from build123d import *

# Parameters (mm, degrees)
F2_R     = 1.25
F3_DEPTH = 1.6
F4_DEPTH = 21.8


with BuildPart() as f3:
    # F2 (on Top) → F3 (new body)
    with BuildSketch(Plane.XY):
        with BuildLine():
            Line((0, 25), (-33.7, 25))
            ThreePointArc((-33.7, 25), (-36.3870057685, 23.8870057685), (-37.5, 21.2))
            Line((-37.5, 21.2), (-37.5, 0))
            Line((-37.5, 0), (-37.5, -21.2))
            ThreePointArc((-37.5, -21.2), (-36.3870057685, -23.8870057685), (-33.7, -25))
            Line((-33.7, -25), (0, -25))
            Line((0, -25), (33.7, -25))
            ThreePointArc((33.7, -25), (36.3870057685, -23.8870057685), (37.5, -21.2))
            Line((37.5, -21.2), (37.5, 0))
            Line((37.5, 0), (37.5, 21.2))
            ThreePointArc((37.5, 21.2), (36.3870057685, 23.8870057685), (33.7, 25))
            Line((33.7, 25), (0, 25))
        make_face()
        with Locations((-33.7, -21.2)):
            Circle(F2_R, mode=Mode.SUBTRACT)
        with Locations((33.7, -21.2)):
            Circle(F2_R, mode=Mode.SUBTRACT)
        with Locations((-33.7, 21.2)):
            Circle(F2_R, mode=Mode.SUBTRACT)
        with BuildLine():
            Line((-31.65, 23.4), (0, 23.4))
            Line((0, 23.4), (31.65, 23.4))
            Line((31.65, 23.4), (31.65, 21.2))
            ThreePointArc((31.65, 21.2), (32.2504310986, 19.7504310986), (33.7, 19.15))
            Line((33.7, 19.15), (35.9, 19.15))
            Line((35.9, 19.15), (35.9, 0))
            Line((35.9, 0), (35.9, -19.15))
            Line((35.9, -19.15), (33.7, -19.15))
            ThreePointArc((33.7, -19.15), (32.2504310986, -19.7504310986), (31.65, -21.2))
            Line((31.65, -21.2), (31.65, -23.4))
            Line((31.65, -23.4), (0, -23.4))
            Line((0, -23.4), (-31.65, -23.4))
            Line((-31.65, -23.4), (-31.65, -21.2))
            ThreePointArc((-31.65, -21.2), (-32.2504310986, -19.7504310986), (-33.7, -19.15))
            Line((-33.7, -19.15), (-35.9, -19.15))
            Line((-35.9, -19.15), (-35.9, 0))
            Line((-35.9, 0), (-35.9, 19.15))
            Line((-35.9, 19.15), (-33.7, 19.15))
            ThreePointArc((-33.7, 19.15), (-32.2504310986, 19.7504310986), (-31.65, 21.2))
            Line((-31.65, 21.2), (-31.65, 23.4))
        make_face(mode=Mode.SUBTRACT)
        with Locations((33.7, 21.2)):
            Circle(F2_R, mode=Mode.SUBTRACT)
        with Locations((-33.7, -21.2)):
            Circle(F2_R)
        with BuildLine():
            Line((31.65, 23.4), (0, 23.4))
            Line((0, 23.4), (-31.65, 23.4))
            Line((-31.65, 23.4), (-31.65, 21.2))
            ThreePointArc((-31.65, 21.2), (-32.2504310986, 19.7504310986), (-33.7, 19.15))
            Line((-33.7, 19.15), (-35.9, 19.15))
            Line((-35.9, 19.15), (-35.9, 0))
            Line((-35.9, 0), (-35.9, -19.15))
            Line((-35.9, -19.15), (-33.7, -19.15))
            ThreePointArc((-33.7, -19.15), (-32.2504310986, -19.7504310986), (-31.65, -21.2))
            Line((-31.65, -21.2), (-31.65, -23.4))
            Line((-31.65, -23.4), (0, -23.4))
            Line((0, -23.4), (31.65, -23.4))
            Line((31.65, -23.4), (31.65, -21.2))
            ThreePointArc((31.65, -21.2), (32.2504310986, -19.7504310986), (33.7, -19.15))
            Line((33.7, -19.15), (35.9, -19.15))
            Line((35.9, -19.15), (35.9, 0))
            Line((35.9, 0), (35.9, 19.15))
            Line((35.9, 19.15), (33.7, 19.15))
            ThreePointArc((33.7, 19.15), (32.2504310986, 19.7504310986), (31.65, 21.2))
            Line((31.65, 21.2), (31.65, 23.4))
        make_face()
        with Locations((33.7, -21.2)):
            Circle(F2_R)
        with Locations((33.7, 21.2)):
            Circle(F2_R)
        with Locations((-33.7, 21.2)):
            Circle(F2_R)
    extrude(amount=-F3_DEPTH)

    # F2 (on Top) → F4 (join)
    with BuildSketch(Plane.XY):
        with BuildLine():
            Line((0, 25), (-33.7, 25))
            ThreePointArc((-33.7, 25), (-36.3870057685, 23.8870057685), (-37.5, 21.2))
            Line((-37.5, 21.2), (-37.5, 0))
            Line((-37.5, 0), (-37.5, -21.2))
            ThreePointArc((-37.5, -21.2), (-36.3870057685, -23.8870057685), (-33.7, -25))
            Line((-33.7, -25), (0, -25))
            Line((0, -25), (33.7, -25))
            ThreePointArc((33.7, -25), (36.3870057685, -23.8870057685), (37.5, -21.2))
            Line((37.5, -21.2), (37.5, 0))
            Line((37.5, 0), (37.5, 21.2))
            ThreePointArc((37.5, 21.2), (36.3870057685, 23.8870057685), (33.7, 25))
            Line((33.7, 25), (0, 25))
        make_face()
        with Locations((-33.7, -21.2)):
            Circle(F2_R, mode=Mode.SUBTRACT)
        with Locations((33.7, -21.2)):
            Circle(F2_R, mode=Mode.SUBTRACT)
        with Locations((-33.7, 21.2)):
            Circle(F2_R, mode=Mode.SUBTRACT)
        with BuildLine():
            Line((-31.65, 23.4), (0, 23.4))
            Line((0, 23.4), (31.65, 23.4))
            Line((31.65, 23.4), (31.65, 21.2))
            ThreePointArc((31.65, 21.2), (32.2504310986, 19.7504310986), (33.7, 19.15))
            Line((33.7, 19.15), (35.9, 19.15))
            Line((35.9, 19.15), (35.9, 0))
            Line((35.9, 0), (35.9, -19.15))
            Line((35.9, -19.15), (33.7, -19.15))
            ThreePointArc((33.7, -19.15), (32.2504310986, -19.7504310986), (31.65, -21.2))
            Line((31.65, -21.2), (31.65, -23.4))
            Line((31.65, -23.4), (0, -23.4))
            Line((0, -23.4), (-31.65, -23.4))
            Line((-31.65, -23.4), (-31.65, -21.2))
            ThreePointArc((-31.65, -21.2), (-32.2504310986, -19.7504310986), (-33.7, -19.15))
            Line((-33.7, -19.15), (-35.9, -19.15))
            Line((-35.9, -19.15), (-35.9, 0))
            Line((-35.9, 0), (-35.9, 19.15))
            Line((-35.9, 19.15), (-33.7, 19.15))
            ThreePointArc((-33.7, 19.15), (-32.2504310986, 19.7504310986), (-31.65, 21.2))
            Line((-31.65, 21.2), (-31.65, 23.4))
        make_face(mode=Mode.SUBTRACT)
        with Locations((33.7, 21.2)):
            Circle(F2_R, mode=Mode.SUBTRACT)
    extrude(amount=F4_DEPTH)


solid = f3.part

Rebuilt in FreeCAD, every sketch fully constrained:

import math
import FreeCAD as App
import Part
import Sketcher

doc = App.newDocument("Part")
body = doc.addObject("PartDesign::Body", "Body")

sketch1 = doc.addObject("Sketcher::SketchObject", "Sketch")
body.addObject(sketch1)
sketch1.AttachmentSupport = (doc.XY_Plane, [""])
sketch1.MapMode = "FlatFace"
sketch1.addGeometry([
    Part.ArcOfCircle(Part.Circle(App.Vector(-33.7, 21.2, 0), App.Vector(0, 0, 1), 3.8), math.radians(90), math.radians(180)),
    Part.LineSegment(App.Vector(-37.5, 21.2, 0), App.Vector(-37.5, -21.2, 0)),
    Part.ArcOfCircle(Part.Circle(App.Vector(-33.7, -21.2, 0), App.Vector(0, 0, 1), 3.8), math.radians(180), math.radians(270)),
    Part.LineSegment(App.Vector(-33.7, -25, 0), App.Vector(33.7, -25, 0)),
    Part.ArcOfCircle(Part.Circle(App.Vector(33.7, -21.2, 0), App.Vector(0, 0, 1), 3.8), math.radians(-90), math.radians(0)),
    Part.LineSegment(App.Vector(37.5, -21.2, 0), App.Vector(37.5, 21.2, 0)),
    Part.ArcOfCircle(Part.Circle(App.Vector(33.7, 21.2, 0), App.Vector(0, 0, 1), 3.8), math.radians(0), math.radians(90)),
    Part.LineSegment(App.Vector(33.7, 25, 0), App.Vector(-33.7, 25, 0)),
], False)
sketch1.addConstraint([
    Sketcher.Constraint("Tangent", 0, 2, 1, 1),
    Sketcher.Constraint("Tangent", 1, 2, 2, 1),
    Sketcher.Constraint("Tangent", 2, 2, 3, 1),
    Sketcher.Constraint("Tangent", 3, 2, 4, 1),
    Sketcher.Constraint("Tangent", 4, 2, 5, 1),
    Sketcher.Constraint("Tangent", 5, 2, 6, 1),
    Sketcher.Constraint("Tangent", 6, 2, 7, 1),
    Sketcher.Constraint("Tangent", 7, 2, 0, 1),
    Sketcher.Constraint("Vertical", 1),
    Sketcher.Constraint("Horizontal", 3),
    Sketcher.Constraint("Vertical", 5),
    Sketcher.Constraint("Horizontal", 7),
    Sketcher.Constraint("Equal", 0, 2),
    Sketcher.Constraint("Equal", 2, 4),
    Sketcher.Constraint("Equal", 4, 6),
    Sketcher.Constraint("Symmetric", 0, 3, 4, 3, -1, 1),
    Sketcher.Constraint("Radius", 0, 3.8),
    Sketcher.Constraint("DistanceX", 3, 1, 3, 2, 67.4),
    Sketcher.Constraint("DistanceY", 1, 2, 1, 1, 42.4),
])
pad1 = doc.addObject("PartDesign::Pad", "Pad")
body.addObject(pad1)
pad1.Profile = sketch1
pad1.Length = 1.6
pad1.Reversed = True

sketch2 = doc.addObject("Sketcher::SketchObject", "Sketch001")
body.addObject(sketch2)
sketch2.AttachmentSupport = (doc.XY_Plane, [""])
sketch2.MapMode = "FlatFace"
sketch2.addGeometry([
    Part.ArcOfCircle(Part.Circle(App.Vector(-33.7, 21.2, 0), App.Vector(0, 0, 1), 3.8), math.radians(90), math.radians(180)),
    Part.LineSegment(App.Vector(-37.5, 21.2, 0), App.Vector(-37.5, -21.2, 0)),
    Part.ArcOfCircle(Part.Circle(App.Vector(-33.7, -21.2, 0), App.Vector(0, 0, 1), 3.8), math.radians(180), math.radians(270)),
    Part.LineSegment(App.Vector(-33.7, -25, 0), App.Vector(33.7, -25, 0)),
    Part.ArcOfCircle(Part.Circle(App.Vector(33.7, -21.2, 0), App.Vector(0, 0, 1), 3.8), math.radians(-90), math.radians(0)),
    Part.LineSegment(App.Vector(37.5, -21.2, 0), App.Vector(37.5, 21.2, 0)),
    Part.ArcOfCircle(Part.Circle(App.Vector(33.7, 21.2, 0), App.Vector(0, 0, 1), 3.8), math.radians(0), math.radians(90)),
    Part.LineSegment(App.Vector(33.7, 25, 0), App.Vector(-33.7, 25, 0)),
    Part.Circle(App.Vector(-33.7, -21.2, 0), App.Vector(0, 0, 1), 1.2),
    Part.Circle(App.Vector(33.7, -21.2, 0), App.Vector(0, 0, 1), 1.2),
    Part.Circle(App.Vector(-33.7, 21.2, 0), App.Vector(0, 0, 1), 1.2),
    Part.LineSegment(App.Vector(-31.6, 21.2, 0), App.Vector(-31.6, 23.4, 0)),
    Part.LineSegment(App.Vector(-31.6, 23.4, 0), App.Vector(31.6, 23.4, 0)),
    Part.LineSegment(App.Vector(31.6, 23.4, 0), App.Vector(31.6, 21.2, 0)),
    Part.ArcOfCircle(Part.Circle(App.Vector(33.7, 21.2, 0), App.Vector(0, 0, 1), 2), math.radians(180), math.radians(270)),
    Part.LineSegment(App.Vector(33.7, 19.1, 0), App.Vector(35.9, 19.1, 0)),
    Part.LineSegment(App.Vector(35.9, 19.1, 0), App.Vector(35.9, -19.1, 0)),
    Part.LineSegment(App.Vector(35.9, -19.1, 0), App.Vector(33.7, -19.1, 0)),
    Part.ArcOfCircle(Part.Circle(App.Vector(33.7, -21.2, 0), App.Vector(0, 0, 1), 2), math.radians(90), math.radians(180)),
    Part.LineSegment(App.Vector(31.6, -21.2, 0), App.Vector(31.6, -23.4, 0)),
    Part.LineSegment(App.Vector(31.6, -23.4, 0), App.Vector(-31.6, -23.4, 0)),
    Part.LineSegment(App.Vector(-31.6, -23.4, 0), App.Vector(-31.6, -21.2, 0)),
    Part.ArcOfCircle(Part.Circle(App.Vector(-33.7, -21.2, 0), App.Vector(0, 0, 1), 2), math.radians(0), math.radians(90)),
    Part.LineSegment(App.Vector(-33.7, -19.1, 0), App.Vector(-35.9, -19.1, 0)),
    Part.LineSegment(App.Vector(-35.9, -19.1, 0), App.Vector(-35.9, 19.1, 0)),
    Part.LineSegment(App.Vector(-35.9, 19.1, 0), App.Vector(-33.7, 19.1, 0)),
    Part.ArcOfCircle(Part.Circle(App.Vector(-33.7, 21.2, 0), App.Vector(0, 0, 1), 2), math.radians(-90), math.radians(0)),
    Part.Circle(App.Vector(33.7, 21.2, 0), App.Vector(0, 0, 1), 1.2),
], False)
sketch2.addConstraint([
    Sketcher.Constraint("Tangent", 0, 2, 1, 1),
    Sketcher.Constraint("Tangent", 1, 2, 2, 1),
    Sketcher.Constraint("Tangent", 2, 2, 3, 1),
    Sketcher.Constraint("Tangent", 3, 2, 4, 1),
    Sketcher.Constraint("Tangent", 4, 2, 5, 1),
    Sketcher.Constraint("Tangent", 5, 2, 6, 1),
    Sketcher.Constraint("Tangent", 6, 2, 7, 1),
    Sketcher.Constraint("Tangent", 7, 2, 0, 1),
    Sketcher.Constraint("Coincident", 11, 2, 12, 1),
    Sketcher.Constraint("Coincident", 12, 2, 13, 1),
    Sketcher.Constraint("Tangent", 13, 2, 14, 1),
    Sketcher.Constraint("Tangent", 14, 2, 15, 1),
    Sketcher.Constraint("Coincident", 15, 2, 16, 1),
    Sketcher.Constraint("Coincident", 16, 2, 17, 1),
    Sketcher.Constraint("Tangent", 17, 2, 18, 1),
    Sketcher.Constraint("Tangent", 18, 2, 19, 1),
    Sketcher.Constraint("Coincident", 19, 2, 20, 1),
    Sketcher.Constraint("Coincident", 20, 2, 21, 1),
    Sketcher.Constraint("Tangent", 21, 2, 22, 1),
    Sketcher.Constraint("Tangent", 22, 2, 23, 1),
    Sketcher.Constraint("Coincident", 23, 2, 24, 1),
    Sketcher.Constraint("Coincident", 24, 2, 25, 1),
    Sketcher.Constraint("Tangent", 25, 2, 26, 1),
    Sketcher.Constraint("Tangent", 26, 2, 11, 1),
    Sketcher.Constraint("Vertical", 1),
    Sketcher.Constraint("Horizontal", 3),
    Sketcher.Constraint("Vertical", 5),
    Sketcher.Constraint("Horizontal", 7),
    Sketcher.Constraint("Vertical", 11),
    Sketcher.Constraint("Horizontal", 12),
    Sketcher.Constraint("Vertical", 13),
    Sketcher.Constraint("Horizontal", 15),
    Sketcher.Constraint("Vertical", 16),
    Sketcher.Constraint("Horizontal", 17),
    Sketcher.Constraint("Vertical", 19),
    Sketcher.Constraint("Horizontal", 20),
    Sketcher.Constraint("Vertical", 21),
    Sketcher.Constraint("Horizontal", 23),
    Sketcher.Constraint("Vertical", 24),
    Sketcher.Constraint("Horizontal", 25),
    Sketcher.Constraint("Coincident", 8, 3, 2, 3),
    Sketcher.Constraint("Coincident", 9, 3, 4, 3),
    Sketcher.Constraint("Coincident", 10, 3, 0, 3),
    Sketcher.Constraint("Coincident", 14, 3, 6, 3),
    Sketcher.Constraint("Coincident", 18, 3, 4, 3),
    Sketcher.Constraint("Coincident", 22, 3, 2, 3),
    Sketcher.Constraint("Coincident", 26, 3, 0, 3),
    Sketcher.Constraint("Coincident", 27, 3, 6, 3),
    Sketcher.Constraint("Equal", 0, 2),
    Sketcher.Constraint("Equal", 2, 4),
    Sketcher.Constraint("Equal", 4, 6),
    Sketcher.Constraint("Equal", 8, 9),
    Sketcher.Constraint("Equal", 9, 10),
    Sketcher.Constraint("Equal", 14, 18),
    Sketcher.Constraint("Equal", 18, 22),
    Sketcher.Constraint("Equal", 22, 26),
    Sketcher.Constraint("Equal", 10, 27),
    Sketcher.Constraint("Symmetric", 0, 3, 4, 3, -1, 1),
    Sketcher.Constraint("Equal", 17, 23),
    Sketcher.Constraint("Equal", 25, 11),
    Sketcher.Constraint("Equal", 13, 19),
    Sketcher.Constraint("Diameter", 8, 2.5),
    Sketcher.Constraint("Radius", 0, 3.8),
    Sketcher.Constraint("Radius", 14, 2.05),
    Sketcher.Constraint("DistanceX", 3, 1, 3, 2, 67.4),
    Sketcher.Constraint("DistanceX", 15, 1, 15, 2, 2.2),
    Sketcher.Constraint("DistanceY", 1, 2, 1, 1, 42.4),
])
pad2 = doc.addObject("PartDesign::Pad", "Pad001")
body.addObject(pad2)
pad2.Profile = sketch2
pad2.Length = 21.8

doc.recompute()
